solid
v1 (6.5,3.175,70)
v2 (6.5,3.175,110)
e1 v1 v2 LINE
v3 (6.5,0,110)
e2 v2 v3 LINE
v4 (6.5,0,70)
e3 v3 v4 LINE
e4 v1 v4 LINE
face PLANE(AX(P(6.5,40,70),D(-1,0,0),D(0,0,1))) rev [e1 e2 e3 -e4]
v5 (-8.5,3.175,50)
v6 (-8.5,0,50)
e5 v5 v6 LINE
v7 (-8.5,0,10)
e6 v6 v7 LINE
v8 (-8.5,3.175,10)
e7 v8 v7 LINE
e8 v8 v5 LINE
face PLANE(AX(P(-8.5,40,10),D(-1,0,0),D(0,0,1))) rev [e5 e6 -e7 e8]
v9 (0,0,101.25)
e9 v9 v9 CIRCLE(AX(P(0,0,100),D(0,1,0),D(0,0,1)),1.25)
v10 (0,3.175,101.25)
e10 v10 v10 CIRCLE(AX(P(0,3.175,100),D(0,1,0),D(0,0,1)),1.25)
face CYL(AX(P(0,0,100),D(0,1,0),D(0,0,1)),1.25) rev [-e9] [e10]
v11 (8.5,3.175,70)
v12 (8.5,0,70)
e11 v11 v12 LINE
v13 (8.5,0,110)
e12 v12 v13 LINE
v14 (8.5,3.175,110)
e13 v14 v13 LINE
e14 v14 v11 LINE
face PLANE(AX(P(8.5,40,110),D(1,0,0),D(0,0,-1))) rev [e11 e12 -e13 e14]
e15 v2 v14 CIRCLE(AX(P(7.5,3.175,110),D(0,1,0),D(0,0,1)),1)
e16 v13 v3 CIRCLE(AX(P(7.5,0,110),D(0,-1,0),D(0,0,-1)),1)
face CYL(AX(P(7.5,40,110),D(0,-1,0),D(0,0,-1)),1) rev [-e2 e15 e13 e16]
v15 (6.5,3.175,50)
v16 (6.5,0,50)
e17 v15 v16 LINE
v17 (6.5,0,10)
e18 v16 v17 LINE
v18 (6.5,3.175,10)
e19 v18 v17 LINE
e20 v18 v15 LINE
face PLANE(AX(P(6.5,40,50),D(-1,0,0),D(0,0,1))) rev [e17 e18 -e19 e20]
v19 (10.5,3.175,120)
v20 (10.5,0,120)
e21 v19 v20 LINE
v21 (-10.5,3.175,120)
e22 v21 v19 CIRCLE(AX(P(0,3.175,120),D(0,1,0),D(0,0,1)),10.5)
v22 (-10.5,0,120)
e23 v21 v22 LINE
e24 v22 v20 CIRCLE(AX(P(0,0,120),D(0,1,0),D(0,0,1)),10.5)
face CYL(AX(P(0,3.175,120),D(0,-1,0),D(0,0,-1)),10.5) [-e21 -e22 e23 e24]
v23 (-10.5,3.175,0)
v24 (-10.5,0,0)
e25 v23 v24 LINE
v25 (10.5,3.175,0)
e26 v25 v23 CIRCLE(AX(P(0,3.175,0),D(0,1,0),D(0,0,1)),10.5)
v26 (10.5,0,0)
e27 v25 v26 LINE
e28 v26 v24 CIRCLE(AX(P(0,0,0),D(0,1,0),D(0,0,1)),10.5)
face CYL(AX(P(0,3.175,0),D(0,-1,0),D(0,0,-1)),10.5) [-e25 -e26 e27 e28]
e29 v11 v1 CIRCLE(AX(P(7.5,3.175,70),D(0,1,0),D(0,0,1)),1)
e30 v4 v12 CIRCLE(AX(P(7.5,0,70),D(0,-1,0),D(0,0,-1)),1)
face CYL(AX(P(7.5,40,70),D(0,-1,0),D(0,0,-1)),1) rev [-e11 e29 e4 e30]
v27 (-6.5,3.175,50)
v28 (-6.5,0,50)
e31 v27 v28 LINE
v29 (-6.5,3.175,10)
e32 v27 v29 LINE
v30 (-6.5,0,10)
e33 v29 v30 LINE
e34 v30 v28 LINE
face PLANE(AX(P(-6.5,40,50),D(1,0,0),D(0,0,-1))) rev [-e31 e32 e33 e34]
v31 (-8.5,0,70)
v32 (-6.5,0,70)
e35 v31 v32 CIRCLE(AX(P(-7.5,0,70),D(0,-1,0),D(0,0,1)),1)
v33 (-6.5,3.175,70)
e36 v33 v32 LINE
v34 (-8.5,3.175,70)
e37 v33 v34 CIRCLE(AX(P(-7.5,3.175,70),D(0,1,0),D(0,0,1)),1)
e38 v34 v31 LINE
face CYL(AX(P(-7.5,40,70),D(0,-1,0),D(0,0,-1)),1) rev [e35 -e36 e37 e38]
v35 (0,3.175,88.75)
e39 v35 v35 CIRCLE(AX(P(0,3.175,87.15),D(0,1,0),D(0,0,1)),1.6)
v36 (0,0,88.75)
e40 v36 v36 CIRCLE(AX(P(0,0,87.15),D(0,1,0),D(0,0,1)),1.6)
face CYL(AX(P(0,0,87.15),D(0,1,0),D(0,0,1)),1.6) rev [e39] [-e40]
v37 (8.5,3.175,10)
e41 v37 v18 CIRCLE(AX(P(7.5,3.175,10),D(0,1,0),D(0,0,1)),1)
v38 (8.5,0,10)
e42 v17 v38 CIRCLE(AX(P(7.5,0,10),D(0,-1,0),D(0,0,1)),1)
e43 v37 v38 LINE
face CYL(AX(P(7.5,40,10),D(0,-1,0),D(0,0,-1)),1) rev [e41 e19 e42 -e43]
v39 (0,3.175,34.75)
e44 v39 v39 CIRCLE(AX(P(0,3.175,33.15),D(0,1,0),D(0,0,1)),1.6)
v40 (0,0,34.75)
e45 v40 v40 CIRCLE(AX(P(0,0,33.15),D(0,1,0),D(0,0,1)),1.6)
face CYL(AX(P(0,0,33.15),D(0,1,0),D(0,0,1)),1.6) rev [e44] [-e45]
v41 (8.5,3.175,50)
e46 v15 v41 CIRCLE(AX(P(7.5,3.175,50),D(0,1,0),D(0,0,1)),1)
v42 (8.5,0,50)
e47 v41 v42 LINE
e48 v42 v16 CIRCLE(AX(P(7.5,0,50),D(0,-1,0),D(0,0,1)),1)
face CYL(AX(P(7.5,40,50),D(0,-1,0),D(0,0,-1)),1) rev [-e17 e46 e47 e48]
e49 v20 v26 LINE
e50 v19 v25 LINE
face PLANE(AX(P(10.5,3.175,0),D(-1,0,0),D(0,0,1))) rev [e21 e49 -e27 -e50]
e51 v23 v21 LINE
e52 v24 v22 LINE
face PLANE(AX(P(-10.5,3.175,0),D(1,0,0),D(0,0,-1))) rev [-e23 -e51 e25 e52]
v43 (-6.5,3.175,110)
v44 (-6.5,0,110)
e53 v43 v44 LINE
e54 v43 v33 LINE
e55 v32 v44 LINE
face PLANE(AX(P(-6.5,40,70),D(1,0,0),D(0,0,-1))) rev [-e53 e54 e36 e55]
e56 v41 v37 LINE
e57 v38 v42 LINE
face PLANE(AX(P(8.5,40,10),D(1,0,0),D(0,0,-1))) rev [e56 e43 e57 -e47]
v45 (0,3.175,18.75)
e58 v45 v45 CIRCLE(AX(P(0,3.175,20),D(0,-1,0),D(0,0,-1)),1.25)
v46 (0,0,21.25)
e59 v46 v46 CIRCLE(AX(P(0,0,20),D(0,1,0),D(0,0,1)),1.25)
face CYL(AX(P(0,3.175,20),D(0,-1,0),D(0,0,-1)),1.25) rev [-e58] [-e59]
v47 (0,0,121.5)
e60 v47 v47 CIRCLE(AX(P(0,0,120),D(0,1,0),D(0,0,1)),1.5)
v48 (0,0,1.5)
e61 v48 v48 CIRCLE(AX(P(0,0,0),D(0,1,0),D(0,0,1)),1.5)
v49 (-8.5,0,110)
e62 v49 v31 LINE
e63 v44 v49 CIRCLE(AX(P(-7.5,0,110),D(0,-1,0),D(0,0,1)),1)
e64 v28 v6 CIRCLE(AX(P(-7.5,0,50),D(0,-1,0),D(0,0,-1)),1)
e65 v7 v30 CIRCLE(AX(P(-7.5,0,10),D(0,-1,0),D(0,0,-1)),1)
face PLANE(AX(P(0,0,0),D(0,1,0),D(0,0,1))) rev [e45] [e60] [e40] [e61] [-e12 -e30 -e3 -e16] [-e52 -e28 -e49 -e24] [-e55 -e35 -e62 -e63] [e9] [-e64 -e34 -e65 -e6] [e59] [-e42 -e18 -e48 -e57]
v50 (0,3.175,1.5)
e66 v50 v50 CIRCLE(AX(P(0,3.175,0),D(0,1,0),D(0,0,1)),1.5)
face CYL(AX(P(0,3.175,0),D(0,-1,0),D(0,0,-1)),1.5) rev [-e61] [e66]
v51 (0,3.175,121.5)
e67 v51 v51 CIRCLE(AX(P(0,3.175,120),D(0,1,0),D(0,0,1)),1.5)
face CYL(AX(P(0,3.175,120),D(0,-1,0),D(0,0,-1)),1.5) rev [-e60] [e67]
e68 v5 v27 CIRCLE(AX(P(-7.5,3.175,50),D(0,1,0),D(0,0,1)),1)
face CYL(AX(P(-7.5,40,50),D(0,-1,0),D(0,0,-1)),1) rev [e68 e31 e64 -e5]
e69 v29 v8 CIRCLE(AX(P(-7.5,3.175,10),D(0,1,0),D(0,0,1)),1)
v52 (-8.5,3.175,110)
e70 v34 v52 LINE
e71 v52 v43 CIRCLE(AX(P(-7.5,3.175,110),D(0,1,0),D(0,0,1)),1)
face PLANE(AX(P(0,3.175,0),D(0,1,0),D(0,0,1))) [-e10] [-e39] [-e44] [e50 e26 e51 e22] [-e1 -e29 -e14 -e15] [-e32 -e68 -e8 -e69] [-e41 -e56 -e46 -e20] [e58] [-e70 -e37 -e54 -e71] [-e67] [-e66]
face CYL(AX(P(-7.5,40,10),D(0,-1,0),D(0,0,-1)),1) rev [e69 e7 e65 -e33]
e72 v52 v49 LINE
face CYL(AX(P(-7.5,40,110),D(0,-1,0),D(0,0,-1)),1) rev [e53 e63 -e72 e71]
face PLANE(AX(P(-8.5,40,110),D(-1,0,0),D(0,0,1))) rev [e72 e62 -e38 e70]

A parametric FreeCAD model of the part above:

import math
import FreeCAD as App
import Part
import Sketcher
from FreeCAD import Vector
Q = App.Units.Quantity

doc = App.newDocument("Part")
body = doc.addObject("PartDesign::Body", "Body")

sketch1 = body.newObject("Sketcher::SketchObject", "Sketch")
sketch1.AttachmentSupport = (doc.getObject("XZ_Plane"), [""])
sketch1.MapMode = "FlatFace"
sketch1.addGeometry(Part.LineSegment(Vector(-10.5, 0, 0), Vector(-10.5, 120, 0)), False)
sketch1.addGeometry(Part.ArcOfCircle(Part.Circle(Vector(0, 120, 0), Vector(0, 0, 1), 10.5), math.radians(0), math.radians(180)), False)
sketch1.addGeometry(Part.LineSegment(Vector(10.5, 120, 0), Vector(10.5, 0, 0)), False)
sketch1.addGeometry(Part.ArcOfCircle(Part.Circle(Vector(0, 0, 0), Vector(0, 0, 1), 10.5), math.radians(180), math.radians(360)), False)
sketch1.addGeometry(Part.Circle(Vector(0, 120, 0), Vector(0, 0, 1), 1.5), False)
sketch1.addGeometry(Part.Circle(Vector(0, 0, 0), Vector(0, 0, 1), 1.5), False)
sketch1.addConstraint(Sketcher.Constraint("Tangent", 0, 2, 1, 2))
sketch1.addConstraint(Sketcher.Constraint("Tangent", 1, 1, 2, 1))
sketch1.addConstraint(Sketcher.Constraint("Tangent", 2, 2, 3, 2))
sketch1.addConstraint(Sketcher.Constraint("Tangent", 3, 1, 0, 1))
sketch1.addConstraint(Sketcher.Constraint("Vertical", 0))
sketch1.addConstraint(Sketcher.Constraint("Vertical", 2))
sketch1.addConstraint(Sketcher.Constraint("Coincident", 3, 3, -1, 1))
sketch1.addConstraint(Sketcher.Constraint("Coincident", 5, 3, -1, 1))
sketch1.addConstraint(Sketcher.Constraint("Coincident", 4, 3, 1, 3))
sketch1.addConstraint(Sketcher.Constraint("Equal", 4, 5))
sketch1.addConstraint(Sketcher.Constraint("Diameter", 4, Q("3 mm")))
sketch1.addConstraint(Sketcher.Constraint("Radius", 1, Q("10.5 mm")))
sketch1.addConstraint(Sketcher.Constraint("DistanceY", 0, 1, 0, 2, Q("120 mm")))
pad1 = body.newObject("PartDesign::Pad", "Pad")
pad1.Profile = sketch1
pad1.Length = 3.175
pad1.Reversed = True

sketch2 = body.newObject("Sketcher::SketchObject", "Sketch001")
sketch2.AttachmentSupport = (doc.getObject("XZ_Plane"), [""])
sketch2.MapMode = "FlatFace"
sketch2.addGeometry(Part.Circle(Vector(0, 20, 0), Vector(0, 0, 1), 1.2), False)
sketch2.addConstraint(Sketcher.Constraint("PointOnObject", 0, 3, -2))
sketch2.addConstraint(Sketcher.Constraint("Diameter", 0, Q("2.5 mm")))
sketch2.addConstraint(Sketcher.Constraint("DistanceY", -1, 1, 0, 3, Q("20 mm")))
pocket1 = body.newObject("PartDesign::Pocket", "Pocket")
pocket1.Profile = sketch2
pocket1.Type = "ThroughAll"
pocket1.Midplane = True

sketch3 = body.newObject("Sketcher::SketchObject", "Sketch002")
sketch3.AttachmentSupport = (doc.getObject("XZ_Plane"), [""])
sketch3.MapMode = "FlatFace"
sketch3.AttachmentOffset = App.Placement(Vector(0, 0, -3.175), App.Rotation())
sketch3.addGeometry(Part.Circle(Vector(0, 100, 0), Vector(0, 0, 1), 1.2), False)
sketch3.addConstraint(Sketcher.Constraint("PointOnObject", 0, 3, -2))
sketch3.addConstraint(Sketcher.Constraint("Diameter", 0, Q("2.5 mm")))
sketch3.addConstraint(Sketcher.Constraint("DistanceY", -1, 1, 0, 3, Q("100 mm")))
pocket2 = body.newObject("PartDesign::Pocket", "Pocket001")
pocket2.Profile = sketch3
pocket2.Type = "ThroughAll"
pocket2.Midplane = True

sketch4 = body.newObject("Sketcher::SketchObject", "Sketch003")
sketch4.AttachmentSupport = (doc.getObject("XZ_Plane"), [""])
sketch4.MapMode = "FlatFace"
sketch4.AttachmentOffset = App.Placement(Vector(0, 0, -3.175), App.Rotation())
sketch4.addGeometry(Part.Circle(Vector(0, 33.1, 0), Vector(0, 0, 1), 1.6), False)
sketch4.addGeometry(Part.Circle(Vector(0, 87.2, 0), Vector(0, 0, 1), 1.6), False)
sketch4.addConstraint(Sketcher.Constraint("Equal", 0, 1))
sketch4.addConstraint(Sketcher.Constraint("PointOnObject", 0, 3, -2))
sketch4.addConstraint(Sketcher.Constraint("PointOnObject", 1, 3, -2))
sketch4.addConstraint(Sketcher.Constraint("Diameter", 0, Q("3.2 mm")))
sketch4.addConstraint(Sketcher.Constraint("DistanceY", 0, 3, 1, 3, Q("54 mm")))
sketch4.addConstraint(Sketcher.Constraint("DistanceY", -1, 1, 0, 3, Q("33.15 mm")))
pocket3 = body.newObject("PartDesign::Pocket", "Pocket002")
pocket3.Profile = sketch4
pocket3.Type = "ThroughAll"
pocket3.Midplane = True

sketch5 = body.newObject("Sketcher::SketchObject", "Sketch004")
sketch5.AttachmentSupport = (doc.getObject("XZ_Plane"), [""])
sketch5.MapMode = "FlatFace"
sketch5.addGeometry(Part.LineSegment(Vector(-8.5, 50, 0), Vector(-8.5, 10, 0)), False)
sketch5.addGeometry(Part.ArcOfCircle(Part.Circle(Vector(-7.5, 10, 0), Vector(0, 0, 1), 1), math.radians(180), math.radians(360)), False)
sketch5.addGeometry(Part.LineSegment(Vector(-6.5, 10, 0), Vector(-6.5, 50, 0)), False)
sketch5.addGeometry(Part.ArcOfCircle(Part.Circle(Vector(-7.5, 50, 0), Vector(0, 0, 1), 1), math.radians(0), math.radians(180)), False)
sketch5.addGeometry(Part.LineSegment(Vector(6.5, 50, 0), Vector(6.5, 10, 0)), False)
sketch5.addGeometry(Part.ArcOfCircle(Part.Circle(Vector(7.5, 10, 0), Vector(0, 0, 1), 1), math.radians(180), math.radians(360)), False)
sketch5.addGeometry(Part.LineSegment(Vector(8.5, 10, 0), Vector(8.5, 50, 0)), False)
sketch5.addGeometry(Part.ArcOfCircle(Part.Circle(Vector(7.5, 50, 0), Vector(0, 0, 1), 1), math.radians(0), math.radians(180)), False)
sketch5.addGeometry(Part.LineSegment(Vector(8.5, 70, 0), Vector(8.5, 110, 0)), False)
sketch5.addGeometry(Part.ArcOfCircle(Part.Circle(Vector(7.5, 110, 0), Vector(0, 0, 1), 1), math.radians(0), math.radians(180)), False)
sketch5.addGeometry(Part.LineSegment(Vector(6.5, 110, 0), Vector(6.5, 70, 0)), False)
sketch5.addGeometry(Part.ArcOfCircle(Part.Circle(Vector(7.5, 70, 0), Vector(0, 0, 1), 1), math.radians(180), math.radians(360)), False)
sketch5.addGeometry(Part.LineSegment(Vector(-6.5, 70, 0), Vector(-6.5, 110, 0)), False)
sketch5.addGeometry(Part.ArcOfCircle(Part.Circle(Vector(-7.5, 110, 0), Vector(0, 0, 1), 1), math.radians(0), math.radians(180)), False)
sketch5.addGeometry(Part.LineSegment(Vector(-8.5, 110, 0), Vector(-8.5, 70, 0)), False)
sketch5.addGeometry(Part.ArcOfCircle(Part.Circle(Vector(-7.5, 70, 0), Vector(0, 0, 1), 1), math.radians(180), math.radians(360)), False)
sketch5.addConstraint(Sketcher.Constraint("Tangent", 0, 2, 1, 1))
sketch5.addConstraint(Sketcher.Constraint("Tangent", 1, 2, 2, 1))
sketch5.addConstraint(Sketcher.Constraint("Tangent", 2, 2, 3, 1))
sketch5.addConstraint(Sketcher.Constraint("Tangent", 3, 2, 0, 1))
sketch5.addConstraint(Sketcher.Constraint("Tangent", 4, 2, 5, 1))
sketch5.addConstraint(Sketcher.Constraint("Tangent", 5, 2, 6, 1))
sketch5.addConstraint(Sketcher.Constraint("Tangent", 6, 2, 7, 1))
sketch5.addConstraint(Sketcher.Constraint("Tangent", 7, 2, 4, 1))
sketch5.addConstraint(Sketcher.Constraint("Tangent", 8, 2, 9, 1))
sketch5.addConstraint(Sketcher.Constraint("Tangent", 9, 2, 10, 1))
sketch5.addConstraint(Sketcher.Constraint("Tangent", 10, 2, 11, 1))
sketch5.addConstraint(Sketcher.Constraint("Tangent", 11, 2, 8, 1))
sketch5.addConstraint(Sketcher.Constraint("Tangent", 12, 2, 13, 1))
sketch5.addConstraint(Sketcher.Constraint("Tangent", 13, 2, 14, 1))
sketch5.addConstraint(Sketcher.Constraint("Tangent", 14, 2, 15, 1))
sketch5.addConstraint(Sketcher.Constraint("Tangent", 15, 2, 12, 1))
sketch5.addConstraint(Sketcher.Constraint("Vertical", 0))
sketch5.addConstraint(Sketcher.Constraint("Vertical", 2))
sketch5.addConstraint(Sketcher.Constraint("Vertical", 4))
sketch5.addConstraint(Sketcher.Constraint("Vertical", 6))
sketch5.addConstraint(Sketcher.Constraint("Vertical", 8))
sketch5.addConstraint(Sketcher.Constraint("Vertical", 10))
sketch5.addConstraint(Sketcher.Constraint("Vertical", 12))
sketch5.addConstraint(Sketcher.Constraint("Vertical", 14))
sketch5.addConstraint(Sketcher.Constraint("Equal", 3, 5))
sketch5.addConstraint(Sketcher.Constraint("Equal", 7, 9))
sketch5.addConstraint(Sketcher.Constraint("Equal", 11, 13))
sketch5.addConstraint(Sketcher.Constraint("Symmetric", 1, 3, 5, 3, -2))
sketch5.addConstraint(Sketcher.Constraint("Symmetric", 9, 3, 13, 3, -2))
sketch5.addConstraint(Sketcher.Constraint("Horizontal", 3, 3, 7, 3))
sketch5.addConstraint(Sketcher.Constraint("Horizontal", 11, 3, 15, 3))
sketch5.addConstraint(Sketcher.Constraint("Vertical", 7, 3, 9, 3))
sketch5.addConstraint(Sketcher.Constraint("Equal", 6, 8))
sketch5.addConstraint(Sketcher.Constraint("Radius", 1, Q("1 mm")))
sketch5.addConstraint(Sketcher.Constraint("DistanceY", 0, 2, 0, 1, Q("40 mm")))
sketch5.addConstraint(Sketcher.Constraint("DistanceY", -1, 1, 1, 3, Q("10 mm")))
sketch5.addConstraint(Sketcher.Constraint("DistanceY", -1, 1, 9, 3, Q("110 mm")))
sketch5.addConstraint(Sketcher.Constraint("DistanceX", 1, 3, 5, 3, Q("15 mm")))
pocket4 = body.newObject("PartDesign::Pocket", "Pocket003")
pocket4.Profile = sketch5
pocket4.Length = 40

doc.recompute()
